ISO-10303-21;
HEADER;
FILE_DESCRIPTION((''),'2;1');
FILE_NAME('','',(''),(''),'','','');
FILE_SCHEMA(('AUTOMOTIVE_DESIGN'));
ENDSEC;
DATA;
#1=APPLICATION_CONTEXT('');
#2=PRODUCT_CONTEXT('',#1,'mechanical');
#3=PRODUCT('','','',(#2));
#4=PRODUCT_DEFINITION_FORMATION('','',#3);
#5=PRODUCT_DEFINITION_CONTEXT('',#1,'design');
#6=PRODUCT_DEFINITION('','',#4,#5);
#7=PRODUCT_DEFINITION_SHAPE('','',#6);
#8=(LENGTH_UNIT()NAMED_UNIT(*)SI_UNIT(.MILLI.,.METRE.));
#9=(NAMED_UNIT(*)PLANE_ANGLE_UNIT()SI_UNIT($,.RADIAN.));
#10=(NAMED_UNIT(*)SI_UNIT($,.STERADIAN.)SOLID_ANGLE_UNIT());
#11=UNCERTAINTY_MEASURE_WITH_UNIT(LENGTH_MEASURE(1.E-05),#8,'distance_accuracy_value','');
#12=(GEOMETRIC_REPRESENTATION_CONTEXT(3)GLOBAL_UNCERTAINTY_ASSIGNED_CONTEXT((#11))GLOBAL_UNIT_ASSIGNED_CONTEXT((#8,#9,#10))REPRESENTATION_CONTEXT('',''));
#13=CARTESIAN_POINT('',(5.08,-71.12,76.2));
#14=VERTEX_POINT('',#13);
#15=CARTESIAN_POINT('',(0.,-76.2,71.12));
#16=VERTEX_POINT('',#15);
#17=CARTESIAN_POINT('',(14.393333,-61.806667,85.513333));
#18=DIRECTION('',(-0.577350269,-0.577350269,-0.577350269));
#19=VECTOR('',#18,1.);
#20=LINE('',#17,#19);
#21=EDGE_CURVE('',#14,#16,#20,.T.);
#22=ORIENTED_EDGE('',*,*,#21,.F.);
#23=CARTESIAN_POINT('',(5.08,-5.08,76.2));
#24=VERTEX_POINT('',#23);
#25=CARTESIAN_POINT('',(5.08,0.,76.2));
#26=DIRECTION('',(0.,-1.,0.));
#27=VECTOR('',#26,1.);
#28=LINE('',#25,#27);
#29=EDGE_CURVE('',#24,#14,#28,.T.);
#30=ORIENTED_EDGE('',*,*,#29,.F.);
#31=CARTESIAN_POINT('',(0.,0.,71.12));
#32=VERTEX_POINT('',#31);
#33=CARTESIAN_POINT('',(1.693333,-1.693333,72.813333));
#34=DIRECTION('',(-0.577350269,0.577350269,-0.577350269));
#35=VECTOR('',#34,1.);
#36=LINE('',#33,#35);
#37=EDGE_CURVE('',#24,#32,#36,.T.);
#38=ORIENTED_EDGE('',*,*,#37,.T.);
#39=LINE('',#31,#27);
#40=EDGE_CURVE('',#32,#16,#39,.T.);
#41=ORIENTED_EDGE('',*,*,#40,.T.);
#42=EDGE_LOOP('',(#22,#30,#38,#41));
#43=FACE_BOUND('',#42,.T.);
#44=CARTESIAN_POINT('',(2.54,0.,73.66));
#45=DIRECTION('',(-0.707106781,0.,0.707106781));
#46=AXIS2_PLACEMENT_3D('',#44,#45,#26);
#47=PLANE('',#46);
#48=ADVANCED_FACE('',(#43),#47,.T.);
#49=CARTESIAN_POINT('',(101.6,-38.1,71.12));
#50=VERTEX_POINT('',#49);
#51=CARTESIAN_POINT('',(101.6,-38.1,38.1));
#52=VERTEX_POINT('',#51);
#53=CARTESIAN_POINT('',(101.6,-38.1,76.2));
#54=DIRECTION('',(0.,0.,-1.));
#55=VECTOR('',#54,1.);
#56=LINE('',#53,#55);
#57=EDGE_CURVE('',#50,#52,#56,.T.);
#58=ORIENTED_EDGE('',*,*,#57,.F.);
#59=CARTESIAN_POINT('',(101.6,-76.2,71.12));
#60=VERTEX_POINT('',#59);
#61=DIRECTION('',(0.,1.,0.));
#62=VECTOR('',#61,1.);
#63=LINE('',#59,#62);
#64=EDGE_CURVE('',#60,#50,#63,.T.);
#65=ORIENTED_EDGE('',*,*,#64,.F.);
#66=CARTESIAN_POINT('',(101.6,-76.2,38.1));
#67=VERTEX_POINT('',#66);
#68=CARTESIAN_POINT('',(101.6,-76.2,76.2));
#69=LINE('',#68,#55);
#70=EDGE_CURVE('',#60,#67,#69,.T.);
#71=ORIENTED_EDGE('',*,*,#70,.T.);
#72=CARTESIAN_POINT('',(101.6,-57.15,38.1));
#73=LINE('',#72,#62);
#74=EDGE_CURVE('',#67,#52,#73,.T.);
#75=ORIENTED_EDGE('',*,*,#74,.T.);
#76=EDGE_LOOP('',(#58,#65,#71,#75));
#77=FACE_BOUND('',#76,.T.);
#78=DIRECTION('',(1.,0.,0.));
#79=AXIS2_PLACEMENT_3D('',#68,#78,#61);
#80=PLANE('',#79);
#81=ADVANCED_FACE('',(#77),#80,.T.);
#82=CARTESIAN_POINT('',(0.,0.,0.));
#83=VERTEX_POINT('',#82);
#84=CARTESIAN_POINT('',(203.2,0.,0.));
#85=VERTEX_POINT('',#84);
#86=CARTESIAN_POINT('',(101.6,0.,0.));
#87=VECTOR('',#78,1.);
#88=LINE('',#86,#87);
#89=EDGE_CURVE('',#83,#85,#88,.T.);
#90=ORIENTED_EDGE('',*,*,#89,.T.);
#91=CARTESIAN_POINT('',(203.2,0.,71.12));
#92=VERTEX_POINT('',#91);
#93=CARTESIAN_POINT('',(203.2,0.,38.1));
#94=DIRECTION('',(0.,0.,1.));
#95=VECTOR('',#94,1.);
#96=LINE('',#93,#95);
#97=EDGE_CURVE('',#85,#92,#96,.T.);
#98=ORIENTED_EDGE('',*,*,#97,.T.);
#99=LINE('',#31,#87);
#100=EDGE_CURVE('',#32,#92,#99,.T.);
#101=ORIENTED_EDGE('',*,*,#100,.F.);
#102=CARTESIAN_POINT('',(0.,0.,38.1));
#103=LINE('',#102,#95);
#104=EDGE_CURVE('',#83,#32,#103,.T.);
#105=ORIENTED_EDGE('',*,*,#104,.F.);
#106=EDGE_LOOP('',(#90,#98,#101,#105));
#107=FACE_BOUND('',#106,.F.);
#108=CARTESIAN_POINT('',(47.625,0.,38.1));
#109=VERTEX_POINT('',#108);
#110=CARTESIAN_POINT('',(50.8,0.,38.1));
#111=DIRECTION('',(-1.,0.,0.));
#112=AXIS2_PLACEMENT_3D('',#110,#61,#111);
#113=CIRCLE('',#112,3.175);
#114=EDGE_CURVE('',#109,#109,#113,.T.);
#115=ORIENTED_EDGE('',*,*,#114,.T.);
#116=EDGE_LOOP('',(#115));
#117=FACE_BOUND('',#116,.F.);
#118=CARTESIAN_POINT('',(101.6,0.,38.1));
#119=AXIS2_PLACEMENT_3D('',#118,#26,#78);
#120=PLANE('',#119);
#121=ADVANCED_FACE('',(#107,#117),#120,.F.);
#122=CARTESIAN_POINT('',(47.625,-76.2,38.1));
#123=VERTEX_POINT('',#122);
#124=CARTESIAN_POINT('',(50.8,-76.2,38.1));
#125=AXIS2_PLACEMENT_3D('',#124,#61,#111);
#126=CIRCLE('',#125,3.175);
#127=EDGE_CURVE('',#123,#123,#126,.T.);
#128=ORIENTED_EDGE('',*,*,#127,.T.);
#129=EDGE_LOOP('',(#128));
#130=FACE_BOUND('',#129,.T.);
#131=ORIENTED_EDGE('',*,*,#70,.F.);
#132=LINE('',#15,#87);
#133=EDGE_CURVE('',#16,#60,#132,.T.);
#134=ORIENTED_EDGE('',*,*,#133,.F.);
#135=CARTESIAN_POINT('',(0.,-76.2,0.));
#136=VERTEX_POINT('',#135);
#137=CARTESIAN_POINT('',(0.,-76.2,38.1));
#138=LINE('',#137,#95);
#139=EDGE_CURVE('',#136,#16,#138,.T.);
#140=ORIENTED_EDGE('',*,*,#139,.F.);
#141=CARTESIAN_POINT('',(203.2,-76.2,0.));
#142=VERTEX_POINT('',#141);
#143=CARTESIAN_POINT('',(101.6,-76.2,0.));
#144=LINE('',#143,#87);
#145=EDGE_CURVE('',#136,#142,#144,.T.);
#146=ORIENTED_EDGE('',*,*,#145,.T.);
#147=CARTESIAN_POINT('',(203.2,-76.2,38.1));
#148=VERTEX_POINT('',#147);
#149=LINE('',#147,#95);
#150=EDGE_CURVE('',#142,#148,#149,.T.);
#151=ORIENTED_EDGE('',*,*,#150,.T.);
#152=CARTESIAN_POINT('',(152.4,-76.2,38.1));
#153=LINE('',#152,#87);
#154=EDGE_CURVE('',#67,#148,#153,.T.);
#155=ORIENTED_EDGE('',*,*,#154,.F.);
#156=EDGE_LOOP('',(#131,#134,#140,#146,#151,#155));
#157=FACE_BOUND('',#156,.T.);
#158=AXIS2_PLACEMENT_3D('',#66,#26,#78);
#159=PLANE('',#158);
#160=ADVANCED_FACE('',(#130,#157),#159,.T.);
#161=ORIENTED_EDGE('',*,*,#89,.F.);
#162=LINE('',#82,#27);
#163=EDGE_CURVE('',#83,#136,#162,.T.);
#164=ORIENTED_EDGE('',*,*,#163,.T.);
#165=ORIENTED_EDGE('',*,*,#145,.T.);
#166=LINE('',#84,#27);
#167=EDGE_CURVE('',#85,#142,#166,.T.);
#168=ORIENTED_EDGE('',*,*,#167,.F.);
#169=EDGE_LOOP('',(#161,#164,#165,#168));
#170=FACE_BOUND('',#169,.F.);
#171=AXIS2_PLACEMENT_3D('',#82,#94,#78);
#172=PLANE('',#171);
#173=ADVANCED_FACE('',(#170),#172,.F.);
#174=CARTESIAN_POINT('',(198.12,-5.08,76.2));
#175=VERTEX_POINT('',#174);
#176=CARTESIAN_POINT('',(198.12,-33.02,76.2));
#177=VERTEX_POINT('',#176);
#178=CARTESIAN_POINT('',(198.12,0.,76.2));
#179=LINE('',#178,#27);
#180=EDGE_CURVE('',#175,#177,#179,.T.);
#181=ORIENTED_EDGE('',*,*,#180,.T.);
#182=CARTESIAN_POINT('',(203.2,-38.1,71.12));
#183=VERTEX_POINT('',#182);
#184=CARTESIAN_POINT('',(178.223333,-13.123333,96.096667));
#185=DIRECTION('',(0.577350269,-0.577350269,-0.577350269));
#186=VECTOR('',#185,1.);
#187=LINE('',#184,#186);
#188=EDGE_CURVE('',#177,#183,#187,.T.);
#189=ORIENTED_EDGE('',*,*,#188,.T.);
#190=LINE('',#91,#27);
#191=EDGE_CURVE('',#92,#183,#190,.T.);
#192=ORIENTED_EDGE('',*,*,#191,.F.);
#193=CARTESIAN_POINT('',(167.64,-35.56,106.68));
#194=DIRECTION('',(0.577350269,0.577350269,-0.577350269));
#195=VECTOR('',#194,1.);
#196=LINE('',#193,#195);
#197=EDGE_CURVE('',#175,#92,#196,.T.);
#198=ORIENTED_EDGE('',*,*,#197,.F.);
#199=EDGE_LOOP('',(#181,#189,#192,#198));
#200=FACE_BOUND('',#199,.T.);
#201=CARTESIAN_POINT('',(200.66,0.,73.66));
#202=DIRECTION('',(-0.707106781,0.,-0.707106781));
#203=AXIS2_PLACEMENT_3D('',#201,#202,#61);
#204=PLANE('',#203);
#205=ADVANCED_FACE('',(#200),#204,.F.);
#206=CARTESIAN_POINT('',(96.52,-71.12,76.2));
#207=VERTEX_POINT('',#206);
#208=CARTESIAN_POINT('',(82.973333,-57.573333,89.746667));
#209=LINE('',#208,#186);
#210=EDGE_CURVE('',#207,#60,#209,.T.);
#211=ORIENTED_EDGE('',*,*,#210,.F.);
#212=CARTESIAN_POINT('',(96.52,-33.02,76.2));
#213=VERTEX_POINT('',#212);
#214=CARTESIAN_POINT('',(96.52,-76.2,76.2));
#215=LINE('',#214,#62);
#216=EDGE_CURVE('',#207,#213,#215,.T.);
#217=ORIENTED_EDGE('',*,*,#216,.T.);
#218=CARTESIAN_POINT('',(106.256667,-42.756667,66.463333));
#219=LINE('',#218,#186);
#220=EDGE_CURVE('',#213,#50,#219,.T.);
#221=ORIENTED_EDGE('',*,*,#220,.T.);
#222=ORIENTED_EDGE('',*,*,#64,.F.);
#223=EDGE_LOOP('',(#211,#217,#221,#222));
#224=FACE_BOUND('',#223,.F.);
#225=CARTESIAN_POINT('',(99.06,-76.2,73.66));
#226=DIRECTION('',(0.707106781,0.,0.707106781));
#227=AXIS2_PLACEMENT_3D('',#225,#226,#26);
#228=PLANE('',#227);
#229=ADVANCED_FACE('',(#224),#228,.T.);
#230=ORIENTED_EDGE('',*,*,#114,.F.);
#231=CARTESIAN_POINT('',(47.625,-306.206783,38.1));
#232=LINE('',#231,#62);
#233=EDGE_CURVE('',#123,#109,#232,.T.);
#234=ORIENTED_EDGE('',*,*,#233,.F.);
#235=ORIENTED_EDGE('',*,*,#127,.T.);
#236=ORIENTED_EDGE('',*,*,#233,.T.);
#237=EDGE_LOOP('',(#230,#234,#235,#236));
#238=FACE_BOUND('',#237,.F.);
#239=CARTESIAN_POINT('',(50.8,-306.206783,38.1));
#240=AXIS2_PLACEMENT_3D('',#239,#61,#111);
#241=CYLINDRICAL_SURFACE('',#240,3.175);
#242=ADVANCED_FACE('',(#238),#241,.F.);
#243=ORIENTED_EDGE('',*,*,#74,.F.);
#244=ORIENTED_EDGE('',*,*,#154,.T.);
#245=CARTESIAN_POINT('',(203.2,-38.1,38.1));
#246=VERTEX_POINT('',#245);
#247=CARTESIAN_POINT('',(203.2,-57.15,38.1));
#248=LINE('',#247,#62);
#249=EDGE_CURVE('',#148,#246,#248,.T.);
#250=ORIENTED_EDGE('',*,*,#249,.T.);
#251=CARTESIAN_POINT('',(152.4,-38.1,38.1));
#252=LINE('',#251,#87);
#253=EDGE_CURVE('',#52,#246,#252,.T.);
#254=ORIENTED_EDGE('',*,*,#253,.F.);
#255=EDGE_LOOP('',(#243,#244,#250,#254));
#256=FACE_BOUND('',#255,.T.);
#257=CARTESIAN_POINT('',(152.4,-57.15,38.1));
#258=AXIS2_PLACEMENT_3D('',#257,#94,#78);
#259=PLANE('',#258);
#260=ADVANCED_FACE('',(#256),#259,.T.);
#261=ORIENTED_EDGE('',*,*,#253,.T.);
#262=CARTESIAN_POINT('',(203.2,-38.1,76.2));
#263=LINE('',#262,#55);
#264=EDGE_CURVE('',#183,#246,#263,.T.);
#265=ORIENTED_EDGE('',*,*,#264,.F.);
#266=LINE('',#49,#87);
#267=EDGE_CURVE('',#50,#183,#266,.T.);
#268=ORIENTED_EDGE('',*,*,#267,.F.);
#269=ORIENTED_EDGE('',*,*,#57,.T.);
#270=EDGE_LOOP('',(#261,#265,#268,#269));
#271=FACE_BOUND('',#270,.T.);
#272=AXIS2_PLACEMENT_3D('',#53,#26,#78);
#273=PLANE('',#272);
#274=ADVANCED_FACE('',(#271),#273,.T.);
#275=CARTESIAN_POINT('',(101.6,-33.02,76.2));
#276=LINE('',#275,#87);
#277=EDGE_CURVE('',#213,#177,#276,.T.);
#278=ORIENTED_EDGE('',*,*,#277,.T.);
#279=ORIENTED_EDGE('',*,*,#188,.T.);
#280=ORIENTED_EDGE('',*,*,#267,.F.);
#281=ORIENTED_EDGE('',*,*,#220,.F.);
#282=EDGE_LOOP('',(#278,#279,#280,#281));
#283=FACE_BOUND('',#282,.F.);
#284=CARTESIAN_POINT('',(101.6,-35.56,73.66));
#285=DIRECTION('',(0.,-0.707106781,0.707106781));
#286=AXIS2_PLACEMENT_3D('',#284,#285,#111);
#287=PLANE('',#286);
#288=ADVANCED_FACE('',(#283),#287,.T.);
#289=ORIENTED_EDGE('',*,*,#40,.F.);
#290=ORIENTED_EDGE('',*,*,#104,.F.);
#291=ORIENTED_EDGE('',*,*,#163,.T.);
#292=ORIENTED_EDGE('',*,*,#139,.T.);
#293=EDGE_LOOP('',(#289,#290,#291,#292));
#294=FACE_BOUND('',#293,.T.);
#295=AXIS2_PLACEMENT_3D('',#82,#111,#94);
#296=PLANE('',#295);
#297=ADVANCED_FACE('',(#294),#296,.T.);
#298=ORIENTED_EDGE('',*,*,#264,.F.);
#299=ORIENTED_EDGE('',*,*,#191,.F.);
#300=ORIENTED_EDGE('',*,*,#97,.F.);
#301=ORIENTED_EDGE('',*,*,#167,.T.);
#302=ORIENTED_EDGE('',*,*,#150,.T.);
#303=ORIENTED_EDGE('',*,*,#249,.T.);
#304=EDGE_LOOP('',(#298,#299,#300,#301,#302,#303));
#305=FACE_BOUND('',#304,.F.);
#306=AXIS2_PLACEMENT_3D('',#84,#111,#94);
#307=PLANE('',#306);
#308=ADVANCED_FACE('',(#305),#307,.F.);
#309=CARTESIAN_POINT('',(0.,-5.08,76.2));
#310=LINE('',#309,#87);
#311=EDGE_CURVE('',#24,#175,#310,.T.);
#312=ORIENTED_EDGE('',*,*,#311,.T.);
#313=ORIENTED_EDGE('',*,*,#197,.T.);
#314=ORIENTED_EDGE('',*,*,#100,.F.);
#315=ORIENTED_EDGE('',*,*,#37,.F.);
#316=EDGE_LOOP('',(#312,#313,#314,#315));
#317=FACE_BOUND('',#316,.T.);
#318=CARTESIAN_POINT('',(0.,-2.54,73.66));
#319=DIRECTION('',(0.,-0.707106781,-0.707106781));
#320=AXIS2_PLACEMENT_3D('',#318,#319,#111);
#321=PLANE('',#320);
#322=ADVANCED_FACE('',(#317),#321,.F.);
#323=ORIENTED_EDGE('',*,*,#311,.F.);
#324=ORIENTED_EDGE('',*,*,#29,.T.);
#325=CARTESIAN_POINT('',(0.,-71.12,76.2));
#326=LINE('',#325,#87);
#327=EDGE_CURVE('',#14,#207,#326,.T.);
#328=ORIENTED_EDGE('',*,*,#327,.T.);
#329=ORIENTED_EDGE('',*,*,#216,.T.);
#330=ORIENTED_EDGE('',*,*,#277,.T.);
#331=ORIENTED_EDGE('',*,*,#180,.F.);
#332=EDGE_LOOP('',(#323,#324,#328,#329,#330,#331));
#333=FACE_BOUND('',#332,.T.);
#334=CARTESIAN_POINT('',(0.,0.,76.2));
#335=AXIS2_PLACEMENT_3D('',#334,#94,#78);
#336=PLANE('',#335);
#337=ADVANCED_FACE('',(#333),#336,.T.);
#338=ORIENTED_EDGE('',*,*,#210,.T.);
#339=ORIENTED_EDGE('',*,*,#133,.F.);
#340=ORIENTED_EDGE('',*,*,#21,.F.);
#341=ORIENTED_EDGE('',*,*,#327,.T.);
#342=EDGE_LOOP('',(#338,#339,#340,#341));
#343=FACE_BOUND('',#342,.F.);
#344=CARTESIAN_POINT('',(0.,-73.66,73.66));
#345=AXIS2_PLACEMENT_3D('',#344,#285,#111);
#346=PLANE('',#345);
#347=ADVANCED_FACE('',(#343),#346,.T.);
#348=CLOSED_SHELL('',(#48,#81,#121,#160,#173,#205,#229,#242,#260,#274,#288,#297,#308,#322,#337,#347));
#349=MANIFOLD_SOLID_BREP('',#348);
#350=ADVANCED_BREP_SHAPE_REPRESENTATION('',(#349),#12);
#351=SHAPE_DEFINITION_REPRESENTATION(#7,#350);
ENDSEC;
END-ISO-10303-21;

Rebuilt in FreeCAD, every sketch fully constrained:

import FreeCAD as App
import Part
import Sketcher

V = App.Vector
Q = App.Units.Quantity


def edges_at(feature, points):
    """Names of the edges that pass closest to the given points."""
    edges = feature.Shape.Edges
    near = lambda p: min(range(len(edges)), key=lambda i: edges[i].distToShape(Part.Vertex(*p))[0])
    return sorted({f"Edge{near(p) + 1}" for p in points})


def add_polygon(sketch, points):
    """Adds a closed chain of lines whose ends are joined by coincident constraints."""
    first, n = sketch.GeometryCount, len(points)
    for a, b in zip(points, points[1:] + points[:1]):
        sketch.addGeometry(Part.LineSegment(App.Vector(*a, 0), App.Vector(*b, 0)), False)
    for i in range(n):
        sketch.addConstraint(Sketcher.Constraint("Coincident", first + i, 2, first + (i + 1) % n, 1))

doc = App.newDocument("Part")
body = doc.addObject("PartDesign::Body", "Body")

# Sketch on XZ plane
sketch1 = doc.addObject("Sketcher::SketchObject", "Sketch")
body.addObject(sketch1)
sketch1.AttachmentSupport = (doc.XZ_Plane, [""])
sketch1.MapMode = "FlatFace"
add_polygon(sketch1, [(0, 76.2), (0, 0), (203.2, 0), (203.2, 76.2)])  # lines 0-3
sketch1.addConstraint([
    Sketcher.Constraint("Vertical", 0),
    Sketcher.Constraint("Horizontal", 1),
    Sketcher.Constraint("Vertical", 2),
    Sketcher.Constraint("Horizontal", 3),
    Sketcher.Constraint("Coincident", 0, 2, -1, 1),
    Sketcher.Constraint("DistanceX", 1, 1, 1, 2, Q("8 in")),
    Sketcher.Constraint("DistanceY", 0, 2, 0, 1, Q("3 in")),
])
pad1 = doc.addObject("PartDesign::Pad", "Pad")
body.addObject(pad1)
pad1.Profile = sketch1
pad1.Length = Q("3 in")

# Sketch on XY plane
sketch2 = doc.addObject("Sketcher::SketchObject", "Sketch001")
body.addObject(sketch2)
sketch2.AttachmentSupport = (doc.XY_Plane, [""])
sketch2.MapMode = "FlatFace"
sketch2.AttachmentOffset = App.Placement(V(0, 0, 3 * 25.4), App.Rotation())
add_polygon(sketch2, [(101.6, -38.1), (101.6, -76.2), (203.2, -76.2), (203.2, -38.1)])  # lines 0-3
sketch2.addConstraint([
    Sketcher.Constraint("Vertical", 0),
    Sketcher.Constraint("Horizontal", 1),
    Sketcher.Constraint("Vertical", 2),
    Sketcher.Constraint("Horizontal", 3),
    Sketcher.Constraint("DistanceX", 1, 1, 1, 2, Q("4 in")),
    Sketcher.Constraint("DistanceY", 0, 2, 0, 1, Q("1.5 in")),
    Sketcher.Constraint("DistanceX", -1, 1, 0, 2, Q("4 in")),
    Sketcher.Constraint("DistanceY", 0, 2, -1, 1, Q("3 in")),
])
pocket1 = doc.addObject("PartDesign::Pocket", "Pocket")
body.addObject(pocket1)
pocket1.Profile = sketch2
pocket1.Length = Q("1.5 in")
doc.recompute()

chamfer = doc.addObject("PartDesign::Chamfer", "Chamfer")
body.addObject(chamfer)
chamfer.Base = (pocket1, edges_at(pocket1, [
    (50.8, -76.2, 76.2),
    (101.6, 0, 76.2),
    (0, -38.1, 76.2),
    (101.6, -57.15, 76.2),
    (152.4, -38.1, 76.2),
    (203.2, -19.05, 76.2),
]))
chamfer.Size = Q("0.2 in")

# Sketch on XZ plane
sketch3 = doc.addObject("Sketcher::SketchObject", "Sketch002")
body.addObject(sketch3)
sketch3.AttachmentSupport = (doc.XZ_Plane, [""])
sketch3.MapMode = "FlatFace"
sketch3.AttachmentOffset = App.Placement(V(0, 0, 3 * 25.4), App.Rotation())
sketch3.addGeometry(Part.Circle(V(50.8, 38.1, 0), V(0, 0, 1), 3.175), False)
sketch3.addConstraint([
    Sketcher.Constraint("Diameter", 0, Q("0.25 in")),
    Sketcher.Constraint("DistanceX", -1, 1, 0, 3, Q("2 in")),
    Sketcher.Constraint("DistanceY", -1, 1, 0, 3, Q("1.5 in")),
])
doc.recompute()
hole = doc.addObject("PartDesign::Hole", "Hole")
body.addObject(hole)
hole.Profile = sketch3
hole.ThreadType = "None"
hole.Diameter = Q("0.25 in")
hole.DepthType = "ThroughAll"

doc.recompute()
